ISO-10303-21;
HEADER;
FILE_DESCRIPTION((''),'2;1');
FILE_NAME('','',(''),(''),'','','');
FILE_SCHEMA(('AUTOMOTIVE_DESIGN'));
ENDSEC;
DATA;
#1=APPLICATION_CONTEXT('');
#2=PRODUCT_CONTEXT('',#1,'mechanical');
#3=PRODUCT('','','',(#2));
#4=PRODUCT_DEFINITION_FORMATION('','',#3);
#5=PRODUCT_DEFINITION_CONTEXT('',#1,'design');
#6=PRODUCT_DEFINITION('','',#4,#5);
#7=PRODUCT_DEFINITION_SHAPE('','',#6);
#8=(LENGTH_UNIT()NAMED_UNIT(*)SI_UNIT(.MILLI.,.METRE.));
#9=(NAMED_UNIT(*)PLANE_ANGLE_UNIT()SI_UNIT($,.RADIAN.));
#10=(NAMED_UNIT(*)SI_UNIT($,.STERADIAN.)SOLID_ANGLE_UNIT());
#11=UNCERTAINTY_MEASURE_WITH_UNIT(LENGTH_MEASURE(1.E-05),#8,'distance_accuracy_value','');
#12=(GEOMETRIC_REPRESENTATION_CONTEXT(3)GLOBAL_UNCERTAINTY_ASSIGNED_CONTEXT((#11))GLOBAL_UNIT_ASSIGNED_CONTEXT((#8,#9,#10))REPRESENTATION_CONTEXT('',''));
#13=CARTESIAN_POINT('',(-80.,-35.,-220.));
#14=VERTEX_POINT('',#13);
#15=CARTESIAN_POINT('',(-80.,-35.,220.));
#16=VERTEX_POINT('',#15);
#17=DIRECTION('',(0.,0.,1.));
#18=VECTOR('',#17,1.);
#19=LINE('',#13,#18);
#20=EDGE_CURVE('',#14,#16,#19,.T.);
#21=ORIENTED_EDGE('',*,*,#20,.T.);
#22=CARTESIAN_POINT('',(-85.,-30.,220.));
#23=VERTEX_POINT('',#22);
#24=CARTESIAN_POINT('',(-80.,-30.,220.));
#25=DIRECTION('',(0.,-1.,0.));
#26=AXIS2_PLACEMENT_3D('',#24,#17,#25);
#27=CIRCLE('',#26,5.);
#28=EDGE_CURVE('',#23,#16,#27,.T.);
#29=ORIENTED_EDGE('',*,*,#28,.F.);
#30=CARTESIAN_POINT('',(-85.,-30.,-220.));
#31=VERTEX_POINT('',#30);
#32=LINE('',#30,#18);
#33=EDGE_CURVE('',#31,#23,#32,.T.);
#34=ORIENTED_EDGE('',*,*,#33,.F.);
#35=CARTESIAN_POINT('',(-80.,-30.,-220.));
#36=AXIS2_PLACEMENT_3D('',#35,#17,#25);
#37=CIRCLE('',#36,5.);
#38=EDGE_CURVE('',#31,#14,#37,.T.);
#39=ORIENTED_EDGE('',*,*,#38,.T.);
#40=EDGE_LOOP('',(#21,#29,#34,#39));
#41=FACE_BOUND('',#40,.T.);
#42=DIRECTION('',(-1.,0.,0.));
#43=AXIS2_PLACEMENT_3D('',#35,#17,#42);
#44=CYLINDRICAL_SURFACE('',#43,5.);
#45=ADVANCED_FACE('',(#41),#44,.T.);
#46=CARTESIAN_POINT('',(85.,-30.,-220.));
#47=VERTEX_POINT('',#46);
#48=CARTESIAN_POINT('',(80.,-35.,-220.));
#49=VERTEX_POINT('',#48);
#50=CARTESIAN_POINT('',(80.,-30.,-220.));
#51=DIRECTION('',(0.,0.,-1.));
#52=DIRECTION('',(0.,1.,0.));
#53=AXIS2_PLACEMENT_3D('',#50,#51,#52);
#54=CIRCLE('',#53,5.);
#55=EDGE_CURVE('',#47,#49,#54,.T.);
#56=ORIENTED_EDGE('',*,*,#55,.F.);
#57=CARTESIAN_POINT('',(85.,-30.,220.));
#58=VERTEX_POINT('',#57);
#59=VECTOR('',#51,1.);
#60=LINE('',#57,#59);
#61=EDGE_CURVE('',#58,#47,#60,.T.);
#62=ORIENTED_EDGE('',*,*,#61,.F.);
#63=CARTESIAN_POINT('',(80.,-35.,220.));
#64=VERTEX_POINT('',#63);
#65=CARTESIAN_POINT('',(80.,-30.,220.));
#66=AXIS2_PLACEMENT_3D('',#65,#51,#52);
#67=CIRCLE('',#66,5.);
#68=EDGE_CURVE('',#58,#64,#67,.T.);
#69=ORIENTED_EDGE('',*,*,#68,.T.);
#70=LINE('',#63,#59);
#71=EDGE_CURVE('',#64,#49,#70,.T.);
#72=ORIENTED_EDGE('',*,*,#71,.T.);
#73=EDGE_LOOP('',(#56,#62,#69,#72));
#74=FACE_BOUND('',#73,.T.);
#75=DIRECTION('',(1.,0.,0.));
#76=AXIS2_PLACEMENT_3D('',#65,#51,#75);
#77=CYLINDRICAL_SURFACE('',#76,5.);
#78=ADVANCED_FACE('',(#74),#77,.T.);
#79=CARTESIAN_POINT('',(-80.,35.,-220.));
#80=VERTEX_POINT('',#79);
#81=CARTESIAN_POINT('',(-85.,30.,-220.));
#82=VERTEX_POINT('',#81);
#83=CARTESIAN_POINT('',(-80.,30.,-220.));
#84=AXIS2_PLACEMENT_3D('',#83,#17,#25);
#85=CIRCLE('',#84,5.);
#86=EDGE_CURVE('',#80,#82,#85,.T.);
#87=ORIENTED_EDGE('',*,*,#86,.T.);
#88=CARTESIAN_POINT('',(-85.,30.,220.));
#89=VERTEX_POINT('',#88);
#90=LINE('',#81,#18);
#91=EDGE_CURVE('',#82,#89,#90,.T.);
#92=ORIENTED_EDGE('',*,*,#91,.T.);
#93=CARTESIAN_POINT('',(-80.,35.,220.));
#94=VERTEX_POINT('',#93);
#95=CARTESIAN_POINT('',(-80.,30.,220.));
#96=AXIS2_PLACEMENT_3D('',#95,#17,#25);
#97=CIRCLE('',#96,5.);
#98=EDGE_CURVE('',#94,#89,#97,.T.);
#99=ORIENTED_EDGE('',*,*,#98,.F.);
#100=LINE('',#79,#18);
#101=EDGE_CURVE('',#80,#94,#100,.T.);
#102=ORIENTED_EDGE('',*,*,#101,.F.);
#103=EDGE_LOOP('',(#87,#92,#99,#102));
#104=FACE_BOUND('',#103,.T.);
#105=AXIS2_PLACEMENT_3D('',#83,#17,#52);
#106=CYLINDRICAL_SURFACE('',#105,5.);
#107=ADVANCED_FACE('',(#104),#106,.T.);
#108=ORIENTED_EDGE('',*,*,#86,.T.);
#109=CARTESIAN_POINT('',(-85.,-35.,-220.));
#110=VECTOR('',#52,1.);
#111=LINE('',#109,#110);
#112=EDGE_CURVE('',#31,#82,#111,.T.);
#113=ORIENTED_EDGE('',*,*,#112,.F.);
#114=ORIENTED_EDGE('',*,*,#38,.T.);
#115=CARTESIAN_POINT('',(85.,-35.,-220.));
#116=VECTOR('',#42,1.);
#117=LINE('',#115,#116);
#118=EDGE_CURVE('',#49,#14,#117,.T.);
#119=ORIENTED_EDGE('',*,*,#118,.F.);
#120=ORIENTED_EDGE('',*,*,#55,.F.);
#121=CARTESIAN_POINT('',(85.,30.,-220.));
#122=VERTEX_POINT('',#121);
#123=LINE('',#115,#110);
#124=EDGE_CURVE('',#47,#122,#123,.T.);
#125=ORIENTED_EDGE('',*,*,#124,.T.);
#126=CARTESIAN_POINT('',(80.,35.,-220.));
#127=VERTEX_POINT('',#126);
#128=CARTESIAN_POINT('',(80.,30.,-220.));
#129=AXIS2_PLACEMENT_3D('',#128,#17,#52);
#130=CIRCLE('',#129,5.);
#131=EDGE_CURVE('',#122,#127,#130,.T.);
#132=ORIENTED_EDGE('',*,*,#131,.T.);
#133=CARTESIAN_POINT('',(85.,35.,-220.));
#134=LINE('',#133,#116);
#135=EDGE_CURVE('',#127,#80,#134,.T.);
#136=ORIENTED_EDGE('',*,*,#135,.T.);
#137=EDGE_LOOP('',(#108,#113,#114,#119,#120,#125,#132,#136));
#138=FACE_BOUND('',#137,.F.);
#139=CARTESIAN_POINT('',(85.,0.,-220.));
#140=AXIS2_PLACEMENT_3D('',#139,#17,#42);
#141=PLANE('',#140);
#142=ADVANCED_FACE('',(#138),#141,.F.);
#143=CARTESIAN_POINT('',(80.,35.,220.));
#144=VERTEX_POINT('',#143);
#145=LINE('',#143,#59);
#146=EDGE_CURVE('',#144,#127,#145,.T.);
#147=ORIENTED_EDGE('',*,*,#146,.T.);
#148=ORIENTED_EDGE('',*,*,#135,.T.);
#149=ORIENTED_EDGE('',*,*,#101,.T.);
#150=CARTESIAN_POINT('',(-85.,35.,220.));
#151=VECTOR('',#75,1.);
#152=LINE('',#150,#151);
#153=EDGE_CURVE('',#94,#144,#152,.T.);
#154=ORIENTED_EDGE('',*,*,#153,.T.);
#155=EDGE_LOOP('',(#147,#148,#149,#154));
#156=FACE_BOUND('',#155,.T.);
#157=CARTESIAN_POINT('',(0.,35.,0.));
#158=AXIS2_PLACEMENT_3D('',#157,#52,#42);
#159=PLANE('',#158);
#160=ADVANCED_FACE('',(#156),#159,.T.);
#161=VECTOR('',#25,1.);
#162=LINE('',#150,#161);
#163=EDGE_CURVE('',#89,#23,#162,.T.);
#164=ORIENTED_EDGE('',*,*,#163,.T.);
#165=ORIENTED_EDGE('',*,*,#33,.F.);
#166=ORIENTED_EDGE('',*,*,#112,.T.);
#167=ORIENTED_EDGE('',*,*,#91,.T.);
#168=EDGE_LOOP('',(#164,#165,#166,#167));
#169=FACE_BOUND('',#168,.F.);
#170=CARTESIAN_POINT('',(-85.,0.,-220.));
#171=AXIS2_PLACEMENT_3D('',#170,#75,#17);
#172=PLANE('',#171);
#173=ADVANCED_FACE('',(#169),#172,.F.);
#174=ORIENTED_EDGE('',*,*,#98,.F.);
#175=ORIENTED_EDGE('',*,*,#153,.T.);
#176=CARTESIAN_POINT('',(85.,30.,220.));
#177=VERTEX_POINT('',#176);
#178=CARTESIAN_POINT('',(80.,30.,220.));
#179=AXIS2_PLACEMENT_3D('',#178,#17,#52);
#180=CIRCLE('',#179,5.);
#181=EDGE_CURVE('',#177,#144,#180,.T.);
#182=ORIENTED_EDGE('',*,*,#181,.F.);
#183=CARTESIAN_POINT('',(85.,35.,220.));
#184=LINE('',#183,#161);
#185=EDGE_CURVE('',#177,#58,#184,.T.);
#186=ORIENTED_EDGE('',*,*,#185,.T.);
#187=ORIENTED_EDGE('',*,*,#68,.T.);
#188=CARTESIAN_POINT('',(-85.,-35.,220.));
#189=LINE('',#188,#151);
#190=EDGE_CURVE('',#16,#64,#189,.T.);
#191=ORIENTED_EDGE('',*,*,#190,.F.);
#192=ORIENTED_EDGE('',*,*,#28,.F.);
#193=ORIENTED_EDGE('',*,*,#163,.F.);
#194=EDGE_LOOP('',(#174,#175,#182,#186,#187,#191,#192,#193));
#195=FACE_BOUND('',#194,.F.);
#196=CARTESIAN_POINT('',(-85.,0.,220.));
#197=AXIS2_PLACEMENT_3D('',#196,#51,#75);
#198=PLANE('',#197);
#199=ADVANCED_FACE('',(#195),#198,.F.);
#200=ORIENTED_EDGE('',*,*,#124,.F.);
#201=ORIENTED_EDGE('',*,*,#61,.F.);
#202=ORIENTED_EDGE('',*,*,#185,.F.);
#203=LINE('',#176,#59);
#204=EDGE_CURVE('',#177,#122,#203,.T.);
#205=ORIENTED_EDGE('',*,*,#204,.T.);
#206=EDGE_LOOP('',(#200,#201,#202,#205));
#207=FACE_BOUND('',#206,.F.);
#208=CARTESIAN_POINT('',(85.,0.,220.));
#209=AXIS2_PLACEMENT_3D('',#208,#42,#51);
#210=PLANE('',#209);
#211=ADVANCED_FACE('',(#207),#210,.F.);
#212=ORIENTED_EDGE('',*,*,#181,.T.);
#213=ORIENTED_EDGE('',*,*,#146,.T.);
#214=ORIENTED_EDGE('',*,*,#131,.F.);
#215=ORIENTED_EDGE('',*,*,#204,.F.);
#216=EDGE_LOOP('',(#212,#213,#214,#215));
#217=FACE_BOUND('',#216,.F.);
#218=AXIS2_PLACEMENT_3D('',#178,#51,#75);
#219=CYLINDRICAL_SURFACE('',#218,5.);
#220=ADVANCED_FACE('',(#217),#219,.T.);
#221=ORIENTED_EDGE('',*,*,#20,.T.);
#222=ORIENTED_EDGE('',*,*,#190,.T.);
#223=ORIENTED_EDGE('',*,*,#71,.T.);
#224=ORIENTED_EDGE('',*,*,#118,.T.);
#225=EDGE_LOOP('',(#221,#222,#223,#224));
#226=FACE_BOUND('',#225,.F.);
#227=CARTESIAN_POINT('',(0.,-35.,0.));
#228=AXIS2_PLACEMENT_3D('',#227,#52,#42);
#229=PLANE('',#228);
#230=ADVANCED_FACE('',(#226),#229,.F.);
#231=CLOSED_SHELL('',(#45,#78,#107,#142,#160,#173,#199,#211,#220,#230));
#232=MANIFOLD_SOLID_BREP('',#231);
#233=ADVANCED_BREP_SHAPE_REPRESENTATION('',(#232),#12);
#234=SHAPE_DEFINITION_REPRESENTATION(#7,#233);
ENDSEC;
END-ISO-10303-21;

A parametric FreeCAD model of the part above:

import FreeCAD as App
import Part
import Sketcher

V = App.Vector
Q = App.Units.Quantity


def edges_at(feature, points):
    """Names of the edges that pass closest to the given points."""
    edges = feature.Shape.Edges
    near = lambda p: min(range(len(edges)), key=lambda i: edges[i].distToShape(Part.Vertex(*p))[0])
    return sorted({f"Edge{near(p) + 1}" for p in points})

doc = App.newDocument("Part")
params = doc.addObject("Spreadsheet::Sheet", "Params")
for row, (alias, value) in enumerate([
    ("sketch1_width", "170 mm"),
    ("sketch1_height", "440 mm"),
    ("pad1_length", "70 mm"),
    ("fillet_radius", "5 mm"),
], start=1):
    params.set(f"A{row}", alias)
    params.set(f"B{row}", "=" + value)
    params.setAlias(f"B{row}", alias)

body = doc.addObject("PartDesign::Body", "Body")

# Sketch on XZ plane
sketch1 = doc.addObject("Sketcher::SketchObject", "Sketch")
body.addObject(sketch1)
sketch1.AttachmentSupport = (doc.XZ_Plane, [""])
sketch1.MapMode = "FlatFace"
sketch1.addGeometry(Part.LineSegment(V(85, 220, 0), V(85, -220, 0)), False)
sketch1.addGeometry(Part.LineSegment(V(85, -220, 0), V(-85, -220, 0)), False)
sketch1.addGeometry(Part.LineSegment(V(-85, -220, 0), V(-85, 220, 0)), False)
sketch1.addGeometry(Part.LineSegment(V(-85, 220, 0), V(85, 220, 0)), False)
sketch1.addConstraint(Sketcher.Constraint("Coincident", 0, 2, 1, 1))
sketch1.addConstraint(Sketcher.Constraint("Coincident", 1, 2, 2, 1))
sketch1.addConstraint(Sketcher.Constraint("Coincident", 2, 2, 3, 1))
sketch1.addConstraint(Sketcher.Constraint("Coincident", 3, 2, 0, 1))
sketch1.addConstraint(Sketcher.Constraint("Vertical", 0))
sketch1.addConstraint(Sketcher.Constraint("Horizontal", 1))
sketch1.addConstraint(Sketcher.Constraint("Vertical", 2))
sketch1.addConstraint(Sketcher.Constraint("Horizontal", 3))
sketch1.addConstraint(Sketcher.Constraint("Symmetric", 0, 2, 2, 2, -1, 1))
sketch1.addConstraint(Sketcher.Constraint("DistanceX", 1, 2, 1, 1, Q("170 mm")))
sketch1.addConstraint(Sketcher.Constraint("DistanceY", 0, 2, 0, 1, Q("440 mm")))
sketch1.setExpression("Constraints[9]", "Params.sketch1_width")
sketch1.setExpression("Constraints[10]", "Params.sketch1_height")
pad1 = doc.addObject("PartDesign::Pad", "Pad")
body.addObject(pad1)
pad1.Profile = sketch1
pad1.setExpression("Length", "Params.pad1_length")
pad1.Midplane = True
doc.recompute()

fillet = doc.addObject("PartDesign::Fillet", "Fillet")
body.addObject(fillet)
fillet.Base = (pad1, edges_at(pad1, [
    (85, -35, 0),
    (85, 35, 0),
    (-85, -35, 0),
    (-85, 35, 0),
]))
fillet.setExpression("Radius", "Params.fillet_radius")

doc.recompute()
